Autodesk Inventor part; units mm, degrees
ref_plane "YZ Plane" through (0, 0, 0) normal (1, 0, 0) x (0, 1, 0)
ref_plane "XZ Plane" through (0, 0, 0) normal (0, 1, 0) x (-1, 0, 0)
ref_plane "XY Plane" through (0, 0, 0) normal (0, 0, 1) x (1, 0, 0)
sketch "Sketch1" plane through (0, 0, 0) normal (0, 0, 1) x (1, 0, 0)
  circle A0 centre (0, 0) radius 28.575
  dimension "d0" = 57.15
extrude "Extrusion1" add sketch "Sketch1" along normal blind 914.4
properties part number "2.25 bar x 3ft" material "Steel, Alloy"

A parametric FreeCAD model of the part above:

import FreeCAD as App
import Part
import Sketcher

V = App.Vector
Q = App.Units.Quantity

doc = App.newDocument("Part")
body = doc.addObject("PartDesign::Body", "Body")

# Sketch on XY plane
sketch1 = doc.addObject("Sketcher::SketchObject", "Sketch")
body.addObject(sketch1)
sketch1.AttachmentSupport = (doc.XY_Plane, [""])
sketch1.MapMode = "FlatFace"
sketch1.addGeometry(Part.Circle(V(0, 0, 0), V(0, 0, 1), 29), False)
sketch1.addConstraint(Sketcher.Constraint("Coincident", 0, 3, -1, 1))
sketch1.addConstraint(Sketcher.Constraint("Diameter", 0, Q("2.25 in")))
pad1 = doc.addObject("PartDesign::Pad", "Pad")
body.addObject(pad1)
pad1.Profile = sketch1
pad1.Length = Q("36 in")

doc.recompute()
